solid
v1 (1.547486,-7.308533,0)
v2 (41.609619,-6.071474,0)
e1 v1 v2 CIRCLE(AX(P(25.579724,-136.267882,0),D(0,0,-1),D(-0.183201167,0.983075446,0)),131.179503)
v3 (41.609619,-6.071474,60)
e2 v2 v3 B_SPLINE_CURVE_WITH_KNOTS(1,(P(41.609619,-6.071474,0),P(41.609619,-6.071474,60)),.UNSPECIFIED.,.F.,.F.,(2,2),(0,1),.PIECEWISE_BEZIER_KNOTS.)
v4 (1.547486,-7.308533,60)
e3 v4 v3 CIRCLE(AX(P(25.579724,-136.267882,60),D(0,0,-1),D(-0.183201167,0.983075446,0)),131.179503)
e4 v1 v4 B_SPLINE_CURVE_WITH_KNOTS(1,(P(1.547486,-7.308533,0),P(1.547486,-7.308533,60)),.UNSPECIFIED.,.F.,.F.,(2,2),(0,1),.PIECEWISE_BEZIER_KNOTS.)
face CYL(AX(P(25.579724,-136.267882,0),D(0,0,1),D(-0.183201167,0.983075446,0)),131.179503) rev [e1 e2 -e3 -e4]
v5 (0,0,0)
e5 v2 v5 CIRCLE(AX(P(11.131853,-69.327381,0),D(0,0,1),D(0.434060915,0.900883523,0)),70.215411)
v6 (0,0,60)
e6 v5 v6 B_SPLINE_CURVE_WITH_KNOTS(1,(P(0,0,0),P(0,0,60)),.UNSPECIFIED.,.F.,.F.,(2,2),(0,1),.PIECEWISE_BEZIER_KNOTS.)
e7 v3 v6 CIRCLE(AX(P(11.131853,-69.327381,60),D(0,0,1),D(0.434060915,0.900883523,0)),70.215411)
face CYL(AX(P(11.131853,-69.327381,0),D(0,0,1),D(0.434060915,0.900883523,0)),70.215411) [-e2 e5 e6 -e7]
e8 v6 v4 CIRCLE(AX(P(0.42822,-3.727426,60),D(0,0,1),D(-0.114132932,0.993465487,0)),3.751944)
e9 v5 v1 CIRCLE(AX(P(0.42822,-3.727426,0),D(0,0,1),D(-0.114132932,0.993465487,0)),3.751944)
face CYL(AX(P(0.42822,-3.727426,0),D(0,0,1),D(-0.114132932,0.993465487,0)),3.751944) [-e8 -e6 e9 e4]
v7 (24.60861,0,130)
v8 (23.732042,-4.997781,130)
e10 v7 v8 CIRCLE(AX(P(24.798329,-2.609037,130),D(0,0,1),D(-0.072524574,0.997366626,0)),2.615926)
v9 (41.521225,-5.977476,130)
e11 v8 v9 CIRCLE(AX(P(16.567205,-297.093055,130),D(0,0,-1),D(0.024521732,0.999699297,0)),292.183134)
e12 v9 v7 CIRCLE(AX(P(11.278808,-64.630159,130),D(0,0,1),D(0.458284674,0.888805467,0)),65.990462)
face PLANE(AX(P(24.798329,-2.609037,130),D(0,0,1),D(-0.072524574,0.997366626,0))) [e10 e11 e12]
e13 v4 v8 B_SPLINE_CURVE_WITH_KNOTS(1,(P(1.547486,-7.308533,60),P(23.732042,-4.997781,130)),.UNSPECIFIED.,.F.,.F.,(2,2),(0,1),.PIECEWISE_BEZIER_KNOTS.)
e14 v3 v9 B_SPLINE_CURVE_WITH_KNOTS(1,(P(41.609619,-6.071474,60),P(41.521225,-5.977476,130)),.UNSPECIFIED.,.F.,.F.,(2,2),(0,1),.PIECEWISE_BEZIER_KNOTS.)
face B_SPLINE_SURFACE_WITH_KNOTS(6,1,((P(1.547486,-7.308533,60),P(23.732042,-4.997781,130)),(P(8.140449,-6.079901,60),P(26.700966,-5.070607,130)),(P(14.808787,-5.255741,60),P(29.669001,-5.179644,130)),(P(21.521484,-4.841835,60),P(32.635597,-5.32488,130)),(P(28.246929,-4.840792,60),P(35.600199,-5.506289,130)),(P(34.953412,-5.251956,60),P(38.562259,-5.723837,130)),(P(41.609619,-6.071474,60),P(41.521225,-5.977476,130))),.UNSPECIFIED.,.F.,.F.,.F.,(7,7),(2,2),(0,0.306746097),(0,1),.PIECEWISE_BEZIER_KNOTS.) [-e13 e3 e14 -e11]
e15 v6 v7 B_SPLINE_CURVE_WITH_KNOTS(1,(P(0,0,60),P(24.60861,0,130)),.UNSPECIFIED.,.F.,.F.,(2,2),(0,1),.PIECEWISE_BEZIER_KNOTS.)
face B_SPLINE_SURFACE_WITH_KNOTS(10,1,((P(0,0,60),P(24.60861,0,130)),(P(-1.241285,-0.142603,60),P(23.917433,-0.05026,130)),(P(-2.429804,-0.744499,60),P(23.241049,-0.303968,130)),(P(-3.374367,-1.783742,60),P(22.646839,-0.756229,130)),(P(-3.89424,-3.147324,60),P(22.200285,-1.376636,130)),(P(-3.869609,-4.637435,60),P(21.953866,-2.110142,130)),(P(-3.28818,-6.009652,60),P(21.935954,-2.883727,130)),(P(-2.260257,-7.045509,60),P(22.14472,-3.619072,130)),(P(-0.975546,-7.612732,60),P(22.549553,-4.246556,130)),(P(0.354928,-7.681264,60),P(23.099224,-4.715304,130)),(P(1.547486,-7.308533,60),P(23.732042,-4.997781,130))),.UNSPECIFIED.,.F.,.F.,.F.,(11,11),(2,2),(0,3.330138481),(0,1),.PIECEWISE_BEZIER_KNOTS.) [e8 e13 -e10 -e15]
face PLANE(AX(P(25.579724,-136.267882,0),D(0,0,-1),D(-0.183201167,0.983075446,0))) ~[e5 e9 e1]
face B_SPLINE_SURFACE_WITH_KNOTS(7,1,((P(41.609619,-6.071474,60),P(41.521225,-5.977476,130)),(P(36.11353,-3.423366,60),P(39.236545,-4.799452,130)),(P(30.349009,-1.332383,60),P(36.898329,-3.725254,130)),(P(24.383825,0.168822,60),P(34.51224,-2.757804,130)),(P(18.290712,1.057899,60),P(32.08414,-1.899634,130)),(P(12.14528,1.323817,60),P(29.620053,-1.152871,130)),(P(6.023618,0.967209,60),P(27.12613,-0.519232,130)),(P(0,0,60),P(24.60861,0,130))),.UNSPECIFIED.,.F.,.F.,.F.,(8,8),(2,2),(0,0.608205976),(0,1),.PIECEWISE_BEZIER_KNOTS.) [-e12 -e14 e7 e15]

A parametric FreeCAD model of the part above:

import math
import FreeCAD as App
import Part
import Sketcher
from FreeCAD import Vector

doc = App.newDocument("Part")
body = doc.addObject("PartDesign::Body", "Body")

sketch1 = body.newObject("Sketcher::SketchObject", "Sketch")
sketch1.AttachmentSupport = (doc.getObject("XY_Plane"), [""])
sketch1.MapMode = "FlatFace"
sketch1.addGeometry([
    Part.ArcOfCircle(Part.Circle(Vector(25.6, -136.3, 0), Vector(0, 0, 1), 131.2), math.radians(82.98), math.radians(100.56)),
    Part.ArcOfCircle(Part.Circle(Vector(11.1, -69.3, 0), Vector(0, 0, 1), 70.2), math.radians(64), math.radians(99)),
    Part.ArcOfCircle(Part.Circle(Vector(0.4, -3.7, 0), Vector(0, 0, 1), 3.8), math.radians(97), math.radians(287)),
], False)
sketch1.addConstraint([
    Sketcher.Constraint("Coincident", 0, 1, 1, 1),
    Sketcher.Constraint("Coincident", 1, 2, 2, 1),
    Sketcher.Constraint("Coincident", 2, 2, 0, 2),
    Sketcher.Constraint("Coincident", 1, 2, -1, 1),
    Sketcher.Constraint("Radius", 1, 70.215411),
    Sketcher.Constraint("Radius", 0, 131.179503),
    Sketcher.Constraint("Radius", 2, 3.751944),
    Sketcher.Constraint("DistanceY", 0, 3, 1, 3, 66.940501),
    Sketcher.Constraint("DistanceX", 2, 3, 0, 1, 41.181399),
    Sketcher.Constraint("DistanceY", 1, 3, -1, 1, 69.327381),
    Sketcher.Constraint("DistanceX", -1, 1, 2, 3, 0.42822),
])

sketch2 = body.newObject("Sketcher::SketchObject", "Sketch001")
sketch2.AttachmentSupport = (doc.getObject("XY_Plane"), [""])
sketch2.MapMode = "FlatFace"
sketch2.AttachmentOffset = App.Placement(Vector(0, 0, 60), App.Rotation())
sketch2.addGeometry([
    Part.ArcOfCircle(Part.Circle(Vector(11.1, -69.3, 0), Vector(0, 0, 1), 70.2), math.radians(64), math.radians(99)),
    Part.ArcOfCircle(Part.Circle(Vector(0.4, -3.7, 0), Vector(0, 0, 1), 3.8), math.radians(97), math.radians(287)),
    Part.ArcOfCircle(Part.Circle(Vector(25.6, -136.3, 0), Vector(0, 0, 1), 131.2), math.radians(82.98), math.radians(100.56)),
], False)
sketch2.addConstraint([
    Sketcher.Constraint("Coincident", 0, 2, 1, 1),
    Sketcher.Constraint("Coincident", 1, 2, 2, 2),
    Sketcher.Constraint("Coincident", 2, 1, 0, 1),
    Sketcher.Constraint("Coincident", 0, 2, -1, 1),
    Sketcher.Constraint("Radius", 0, 70.215411),
    Sketcher.Constraint("Radius", 1, 3.751944),
    Sketcher.Constraint("Radius", 2, 131.179503),
    Sketcher.Constraint("DistanceY", 2, 3, 0, 3, 66.940501),
    Sketcher.Constraint("DistanceX", 1, 3, 2, 1, 41.181399),
    Sketcher.Constraint("DistanceY", 0, 3, -1, 1, 69.327381),
    Sketcher.Constraint("DistanceX", -1, 1, 1, 3, 0.42822),
])

additiveloft = body.newObject("PartDesign::AdditiveLoft", "AdditiveLoft")
additiveloft.Profile = sketch1
additiveloft.Sections = [sketch2]

sketch3 = body.newObject("Sketcher::SketchObject", "Sketch002")
sketch3.AttachmentSupport = (doc.getObject("XY_Plane"), [""])
sketch3.MapMode = "FlatFace"
sketch3.AttachmentOffset = App.Placement(Vector(0, 0, 60), App.Rotation())
sketch3.addGeometry([
    Part.ArcOfCircle(Part.Circle(Vector(0.4, -3.7, 0), Vector(0, 0, 1), 3.8), math.radians(97), math.radians(287)),
    Part.ArcOfCircle(Part.Circle(Vector(25.6, -136.3, 0), Vector(0, 0, 1), 131.2), math.radians(82.98), math.radians(100.56)),
    Part.ArcOfCircle(Part.Circle(Vector(11.1, -69.3, 0), Vector(0, 0, 1), 70.2), math.radians(64), math.radians(99)),
], False)
sketch3.addConstraint([
    Sketcher.Constraint("Coincident", 0, 2, 1, 2),
    Sketcher.Constraint("Coincident", 1, 1, 2, 1),
    Sketcher.Constraint("Coincident", 2, 2, 0, 1),
    Sketcher.Constraint("Coincident", 2, 2, -1, 1),
    Sketcher.Constraint("Radius", 2, 70.215411),
    Sketcher.Constraint("Radius", 0, 3.751944),
    Sketcher.Constraint("Radius", 1, 131.179503),
    Sketcher.Constraint("DistanceY", 1, 3, 2, 3, 66.940501),
    Sketcher.Constraint("DistanceX", 0, 3, 1, 1, 41.181399),
    Sketcher.Constraint("DistanceX", -1, 1, 0, 3, 0.42822),
    Sketcher.Constraint("DistanceY", 2, 3, -1, 1, 69.327381),
])

sketch4 = body.newObject("Sketcher::SketchObject", "Sketch003")
sketch4.AttachmentSupport = (doc.getObject("XY_Plane"), [""])
sketch4.MapMode = "FlatFace"
sketch4.AttachmentOffset = App.Placement(Vector(0, 0, 130), App.Rotation())
sketch4.addGeometry([
    Part.ArcOfCircle(Part.Circle(Vector(16.6, -297.1, 0), Vector(0, 0, 1), 292.2), math.radians(85.1), math.radians(88.59)),
    Part.ArcOfCircle(Part.Circle(Vector(11.3, -64.6, 0), Vector(0, 0, 1), 66), math.radians(62.72), math.radians(78.35)),
    Part.ArcOfCircle(Part.Circle(Vector(24.8, -2.6, 0), Vector(0, 0, 1), 2.6), math.radians(94), math.radians(246)),
], False)
sketch4.addConstraint([
    Sketcher.Constraint("Coincident", 0, 1, 1, 1),
    Sketcher.Constraint("Coincident", 1, 2, 2, 1),
    Sketcher.Constraint("Coincident", 2, 2, 0, 2),
    Sketcher.Constraint("PointOnObject", 1, 2, -1),
    Sketcher.Constraint("Radius", 0, 292.183134),
    Sketcher.Constraint("Radius", 1, 65.990462),
    Sketcher.Constraint("Radius", 2, 2.615926),
    Sketcher.Constraint("DistanceY", 1, 3, -1, 1, 64.630159),
    Sketcher.Constraint("DistanceX", -1, 1, 2, 3, 24.798329),
    Sketcher.Constraint("DistanceX", -1, 1, 1, 2, 24.60861),
    Sketcher.Constraint("DistanceX", -1, 1, 2, 2, 23.732042),
    Sketcher.Constraint("DistanceY", 0, 1, 2, 3, 3.368438),
])

additiveloft2 = body.newObject("PartDesign::AdditiveLoft", "AdditiveLoft001")
additiveloft2.Profile = sketch3
additiveloft2.Sections = [sketch4]

doc.recompute()
